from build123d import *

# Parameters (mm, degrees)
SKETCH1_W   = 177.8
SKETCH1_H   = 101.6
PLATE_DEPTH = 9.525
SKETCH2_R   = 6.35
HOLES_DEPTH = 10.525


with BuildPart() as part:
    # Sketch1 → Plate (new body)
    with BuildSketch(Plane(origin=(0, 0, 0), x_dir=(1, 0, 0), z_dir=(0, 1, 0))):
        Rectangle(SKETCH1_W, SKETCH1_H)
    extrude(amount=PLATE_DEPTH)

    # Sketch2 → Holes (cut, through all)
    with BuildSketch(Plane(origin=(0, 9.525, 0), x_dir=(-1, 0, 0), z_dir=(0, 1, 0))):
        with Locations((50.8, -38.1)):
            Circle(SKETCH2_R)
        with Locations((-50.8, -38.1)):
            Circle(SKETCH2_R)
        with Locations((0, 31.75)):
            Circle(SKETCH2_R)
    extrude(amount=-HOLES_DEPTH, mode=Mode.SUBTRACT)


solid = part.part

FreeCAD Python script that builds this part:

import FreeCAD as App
import Part
import Sketcher
from FreeCAD import Vector
Q = App.Units.Quantity


def add_polygon(sketch, points):
    """Adds a closed chain of lines whose ends are joined by coincident constraints."""
    first, n = sketch.GeometryCount, len(points)
    for a, b in zip(points, points[1:] + points[:1]):
        sketch.addGeometry(Part.LineSegment(App.Vector(*a, 0), App.Vector(*b, 0)), False)
    for i in range(n):
        sketch.addConstraint(Sketcher.Constraint("Coincident", first + i, 2, first + (i + 1) % n, 1))

doc = App.newDocument("Part")
body = doc.addObject("PartDesign::Body", "Body")

sketch1 = body.newObject("Sketcher::SketchObject", "Sketch")
sketch1.AttachmentSupport = (doc.getObject("XZ_Plane"), [""])
sketch1.MapMode = "FlatFace"
add_polygon(sketch1, [(-88.9, -50.8), (-88.9, 50.8), (88.9, 50.8), (88.9, -50.8)])
sketch1.addConstraint([
    Sketcher.Constraint("Vertical", 0),
    Sketcher.Constraint("Horizontal", 1),
    Sketcher.Constraint("Vertical", 2),
    Sketcher.Constraint("Horizontal", 3),
    Sketcher.Constraint("Symmetric", 0, 2, 2, 2, -1, 1),
    Sketcher.Constraint("DistanceX", 1, 1, 1, 2, Q("7 in")),
    Sketcher.Constraint("DistanceY", 0, 1, 0, 2, Q("4 in")),
])
pad1 = body.newObject("PartDesign::Pad", "Pad")
pad1.Profile = sketch1
pad1.Length = Q("0.375 in")
pad1.Reversed = True

sketch2 = body.newObject("Sketcher::SketchObject", "Sketch001")
sketch2.AttachmentSupport = (doc.getObject("XZ_Plane"), [""])
sketch2.MapMode = "FlatFace"
sketch2.AttachmentOffset = App.Placement(Vector(0, 0, -0.375 * 25.4), App.Rotation())
sketch2.addGeometry([
    Part.Circle(Vector(-50.8, -38.1, 0), Vector(0, 0, 1), 6.35),
    Part.Circle(Vector(50.8, -38.1, 0), Vector(0, 0, 1), 6.35),
    Part.Circle(Vector(0, 31.75, 0), Vector(0, 0, 1), 6.35),
], False)
sketch2.addConstraint([
    Sketcher.Constraint("Equal", 0, 1),
    Sketcher.Constraint("Equal", 1, 2),
    Sketcher.Constraint("Symmetric", 0, 3, 1, 3, -2),
    Sketcher.Constraint("PointOnObject", 2, 3, -2),
    Sketcher.Constraint("Diameter", 0, Q("0.5 in")),
    Sketcher.Constraint("DistanceX", 0, 3, -1, 1, Q("2 in")),
    Sketcher.Constraint("DistanceY", 0, 3, -1, 1, Q("1.5 in")),
    Sketcher.Constraint("DistanceY", -1, 1, 2, 3, Q("1.25 in")),
])
pocket1 = body.newObject("PartDesign::Pocket", "Pocket")
pocket1.Profile = sketch2
pocket1.Type = "ThroughAll"
pocket1.Reversed = True

doc.recompute()
